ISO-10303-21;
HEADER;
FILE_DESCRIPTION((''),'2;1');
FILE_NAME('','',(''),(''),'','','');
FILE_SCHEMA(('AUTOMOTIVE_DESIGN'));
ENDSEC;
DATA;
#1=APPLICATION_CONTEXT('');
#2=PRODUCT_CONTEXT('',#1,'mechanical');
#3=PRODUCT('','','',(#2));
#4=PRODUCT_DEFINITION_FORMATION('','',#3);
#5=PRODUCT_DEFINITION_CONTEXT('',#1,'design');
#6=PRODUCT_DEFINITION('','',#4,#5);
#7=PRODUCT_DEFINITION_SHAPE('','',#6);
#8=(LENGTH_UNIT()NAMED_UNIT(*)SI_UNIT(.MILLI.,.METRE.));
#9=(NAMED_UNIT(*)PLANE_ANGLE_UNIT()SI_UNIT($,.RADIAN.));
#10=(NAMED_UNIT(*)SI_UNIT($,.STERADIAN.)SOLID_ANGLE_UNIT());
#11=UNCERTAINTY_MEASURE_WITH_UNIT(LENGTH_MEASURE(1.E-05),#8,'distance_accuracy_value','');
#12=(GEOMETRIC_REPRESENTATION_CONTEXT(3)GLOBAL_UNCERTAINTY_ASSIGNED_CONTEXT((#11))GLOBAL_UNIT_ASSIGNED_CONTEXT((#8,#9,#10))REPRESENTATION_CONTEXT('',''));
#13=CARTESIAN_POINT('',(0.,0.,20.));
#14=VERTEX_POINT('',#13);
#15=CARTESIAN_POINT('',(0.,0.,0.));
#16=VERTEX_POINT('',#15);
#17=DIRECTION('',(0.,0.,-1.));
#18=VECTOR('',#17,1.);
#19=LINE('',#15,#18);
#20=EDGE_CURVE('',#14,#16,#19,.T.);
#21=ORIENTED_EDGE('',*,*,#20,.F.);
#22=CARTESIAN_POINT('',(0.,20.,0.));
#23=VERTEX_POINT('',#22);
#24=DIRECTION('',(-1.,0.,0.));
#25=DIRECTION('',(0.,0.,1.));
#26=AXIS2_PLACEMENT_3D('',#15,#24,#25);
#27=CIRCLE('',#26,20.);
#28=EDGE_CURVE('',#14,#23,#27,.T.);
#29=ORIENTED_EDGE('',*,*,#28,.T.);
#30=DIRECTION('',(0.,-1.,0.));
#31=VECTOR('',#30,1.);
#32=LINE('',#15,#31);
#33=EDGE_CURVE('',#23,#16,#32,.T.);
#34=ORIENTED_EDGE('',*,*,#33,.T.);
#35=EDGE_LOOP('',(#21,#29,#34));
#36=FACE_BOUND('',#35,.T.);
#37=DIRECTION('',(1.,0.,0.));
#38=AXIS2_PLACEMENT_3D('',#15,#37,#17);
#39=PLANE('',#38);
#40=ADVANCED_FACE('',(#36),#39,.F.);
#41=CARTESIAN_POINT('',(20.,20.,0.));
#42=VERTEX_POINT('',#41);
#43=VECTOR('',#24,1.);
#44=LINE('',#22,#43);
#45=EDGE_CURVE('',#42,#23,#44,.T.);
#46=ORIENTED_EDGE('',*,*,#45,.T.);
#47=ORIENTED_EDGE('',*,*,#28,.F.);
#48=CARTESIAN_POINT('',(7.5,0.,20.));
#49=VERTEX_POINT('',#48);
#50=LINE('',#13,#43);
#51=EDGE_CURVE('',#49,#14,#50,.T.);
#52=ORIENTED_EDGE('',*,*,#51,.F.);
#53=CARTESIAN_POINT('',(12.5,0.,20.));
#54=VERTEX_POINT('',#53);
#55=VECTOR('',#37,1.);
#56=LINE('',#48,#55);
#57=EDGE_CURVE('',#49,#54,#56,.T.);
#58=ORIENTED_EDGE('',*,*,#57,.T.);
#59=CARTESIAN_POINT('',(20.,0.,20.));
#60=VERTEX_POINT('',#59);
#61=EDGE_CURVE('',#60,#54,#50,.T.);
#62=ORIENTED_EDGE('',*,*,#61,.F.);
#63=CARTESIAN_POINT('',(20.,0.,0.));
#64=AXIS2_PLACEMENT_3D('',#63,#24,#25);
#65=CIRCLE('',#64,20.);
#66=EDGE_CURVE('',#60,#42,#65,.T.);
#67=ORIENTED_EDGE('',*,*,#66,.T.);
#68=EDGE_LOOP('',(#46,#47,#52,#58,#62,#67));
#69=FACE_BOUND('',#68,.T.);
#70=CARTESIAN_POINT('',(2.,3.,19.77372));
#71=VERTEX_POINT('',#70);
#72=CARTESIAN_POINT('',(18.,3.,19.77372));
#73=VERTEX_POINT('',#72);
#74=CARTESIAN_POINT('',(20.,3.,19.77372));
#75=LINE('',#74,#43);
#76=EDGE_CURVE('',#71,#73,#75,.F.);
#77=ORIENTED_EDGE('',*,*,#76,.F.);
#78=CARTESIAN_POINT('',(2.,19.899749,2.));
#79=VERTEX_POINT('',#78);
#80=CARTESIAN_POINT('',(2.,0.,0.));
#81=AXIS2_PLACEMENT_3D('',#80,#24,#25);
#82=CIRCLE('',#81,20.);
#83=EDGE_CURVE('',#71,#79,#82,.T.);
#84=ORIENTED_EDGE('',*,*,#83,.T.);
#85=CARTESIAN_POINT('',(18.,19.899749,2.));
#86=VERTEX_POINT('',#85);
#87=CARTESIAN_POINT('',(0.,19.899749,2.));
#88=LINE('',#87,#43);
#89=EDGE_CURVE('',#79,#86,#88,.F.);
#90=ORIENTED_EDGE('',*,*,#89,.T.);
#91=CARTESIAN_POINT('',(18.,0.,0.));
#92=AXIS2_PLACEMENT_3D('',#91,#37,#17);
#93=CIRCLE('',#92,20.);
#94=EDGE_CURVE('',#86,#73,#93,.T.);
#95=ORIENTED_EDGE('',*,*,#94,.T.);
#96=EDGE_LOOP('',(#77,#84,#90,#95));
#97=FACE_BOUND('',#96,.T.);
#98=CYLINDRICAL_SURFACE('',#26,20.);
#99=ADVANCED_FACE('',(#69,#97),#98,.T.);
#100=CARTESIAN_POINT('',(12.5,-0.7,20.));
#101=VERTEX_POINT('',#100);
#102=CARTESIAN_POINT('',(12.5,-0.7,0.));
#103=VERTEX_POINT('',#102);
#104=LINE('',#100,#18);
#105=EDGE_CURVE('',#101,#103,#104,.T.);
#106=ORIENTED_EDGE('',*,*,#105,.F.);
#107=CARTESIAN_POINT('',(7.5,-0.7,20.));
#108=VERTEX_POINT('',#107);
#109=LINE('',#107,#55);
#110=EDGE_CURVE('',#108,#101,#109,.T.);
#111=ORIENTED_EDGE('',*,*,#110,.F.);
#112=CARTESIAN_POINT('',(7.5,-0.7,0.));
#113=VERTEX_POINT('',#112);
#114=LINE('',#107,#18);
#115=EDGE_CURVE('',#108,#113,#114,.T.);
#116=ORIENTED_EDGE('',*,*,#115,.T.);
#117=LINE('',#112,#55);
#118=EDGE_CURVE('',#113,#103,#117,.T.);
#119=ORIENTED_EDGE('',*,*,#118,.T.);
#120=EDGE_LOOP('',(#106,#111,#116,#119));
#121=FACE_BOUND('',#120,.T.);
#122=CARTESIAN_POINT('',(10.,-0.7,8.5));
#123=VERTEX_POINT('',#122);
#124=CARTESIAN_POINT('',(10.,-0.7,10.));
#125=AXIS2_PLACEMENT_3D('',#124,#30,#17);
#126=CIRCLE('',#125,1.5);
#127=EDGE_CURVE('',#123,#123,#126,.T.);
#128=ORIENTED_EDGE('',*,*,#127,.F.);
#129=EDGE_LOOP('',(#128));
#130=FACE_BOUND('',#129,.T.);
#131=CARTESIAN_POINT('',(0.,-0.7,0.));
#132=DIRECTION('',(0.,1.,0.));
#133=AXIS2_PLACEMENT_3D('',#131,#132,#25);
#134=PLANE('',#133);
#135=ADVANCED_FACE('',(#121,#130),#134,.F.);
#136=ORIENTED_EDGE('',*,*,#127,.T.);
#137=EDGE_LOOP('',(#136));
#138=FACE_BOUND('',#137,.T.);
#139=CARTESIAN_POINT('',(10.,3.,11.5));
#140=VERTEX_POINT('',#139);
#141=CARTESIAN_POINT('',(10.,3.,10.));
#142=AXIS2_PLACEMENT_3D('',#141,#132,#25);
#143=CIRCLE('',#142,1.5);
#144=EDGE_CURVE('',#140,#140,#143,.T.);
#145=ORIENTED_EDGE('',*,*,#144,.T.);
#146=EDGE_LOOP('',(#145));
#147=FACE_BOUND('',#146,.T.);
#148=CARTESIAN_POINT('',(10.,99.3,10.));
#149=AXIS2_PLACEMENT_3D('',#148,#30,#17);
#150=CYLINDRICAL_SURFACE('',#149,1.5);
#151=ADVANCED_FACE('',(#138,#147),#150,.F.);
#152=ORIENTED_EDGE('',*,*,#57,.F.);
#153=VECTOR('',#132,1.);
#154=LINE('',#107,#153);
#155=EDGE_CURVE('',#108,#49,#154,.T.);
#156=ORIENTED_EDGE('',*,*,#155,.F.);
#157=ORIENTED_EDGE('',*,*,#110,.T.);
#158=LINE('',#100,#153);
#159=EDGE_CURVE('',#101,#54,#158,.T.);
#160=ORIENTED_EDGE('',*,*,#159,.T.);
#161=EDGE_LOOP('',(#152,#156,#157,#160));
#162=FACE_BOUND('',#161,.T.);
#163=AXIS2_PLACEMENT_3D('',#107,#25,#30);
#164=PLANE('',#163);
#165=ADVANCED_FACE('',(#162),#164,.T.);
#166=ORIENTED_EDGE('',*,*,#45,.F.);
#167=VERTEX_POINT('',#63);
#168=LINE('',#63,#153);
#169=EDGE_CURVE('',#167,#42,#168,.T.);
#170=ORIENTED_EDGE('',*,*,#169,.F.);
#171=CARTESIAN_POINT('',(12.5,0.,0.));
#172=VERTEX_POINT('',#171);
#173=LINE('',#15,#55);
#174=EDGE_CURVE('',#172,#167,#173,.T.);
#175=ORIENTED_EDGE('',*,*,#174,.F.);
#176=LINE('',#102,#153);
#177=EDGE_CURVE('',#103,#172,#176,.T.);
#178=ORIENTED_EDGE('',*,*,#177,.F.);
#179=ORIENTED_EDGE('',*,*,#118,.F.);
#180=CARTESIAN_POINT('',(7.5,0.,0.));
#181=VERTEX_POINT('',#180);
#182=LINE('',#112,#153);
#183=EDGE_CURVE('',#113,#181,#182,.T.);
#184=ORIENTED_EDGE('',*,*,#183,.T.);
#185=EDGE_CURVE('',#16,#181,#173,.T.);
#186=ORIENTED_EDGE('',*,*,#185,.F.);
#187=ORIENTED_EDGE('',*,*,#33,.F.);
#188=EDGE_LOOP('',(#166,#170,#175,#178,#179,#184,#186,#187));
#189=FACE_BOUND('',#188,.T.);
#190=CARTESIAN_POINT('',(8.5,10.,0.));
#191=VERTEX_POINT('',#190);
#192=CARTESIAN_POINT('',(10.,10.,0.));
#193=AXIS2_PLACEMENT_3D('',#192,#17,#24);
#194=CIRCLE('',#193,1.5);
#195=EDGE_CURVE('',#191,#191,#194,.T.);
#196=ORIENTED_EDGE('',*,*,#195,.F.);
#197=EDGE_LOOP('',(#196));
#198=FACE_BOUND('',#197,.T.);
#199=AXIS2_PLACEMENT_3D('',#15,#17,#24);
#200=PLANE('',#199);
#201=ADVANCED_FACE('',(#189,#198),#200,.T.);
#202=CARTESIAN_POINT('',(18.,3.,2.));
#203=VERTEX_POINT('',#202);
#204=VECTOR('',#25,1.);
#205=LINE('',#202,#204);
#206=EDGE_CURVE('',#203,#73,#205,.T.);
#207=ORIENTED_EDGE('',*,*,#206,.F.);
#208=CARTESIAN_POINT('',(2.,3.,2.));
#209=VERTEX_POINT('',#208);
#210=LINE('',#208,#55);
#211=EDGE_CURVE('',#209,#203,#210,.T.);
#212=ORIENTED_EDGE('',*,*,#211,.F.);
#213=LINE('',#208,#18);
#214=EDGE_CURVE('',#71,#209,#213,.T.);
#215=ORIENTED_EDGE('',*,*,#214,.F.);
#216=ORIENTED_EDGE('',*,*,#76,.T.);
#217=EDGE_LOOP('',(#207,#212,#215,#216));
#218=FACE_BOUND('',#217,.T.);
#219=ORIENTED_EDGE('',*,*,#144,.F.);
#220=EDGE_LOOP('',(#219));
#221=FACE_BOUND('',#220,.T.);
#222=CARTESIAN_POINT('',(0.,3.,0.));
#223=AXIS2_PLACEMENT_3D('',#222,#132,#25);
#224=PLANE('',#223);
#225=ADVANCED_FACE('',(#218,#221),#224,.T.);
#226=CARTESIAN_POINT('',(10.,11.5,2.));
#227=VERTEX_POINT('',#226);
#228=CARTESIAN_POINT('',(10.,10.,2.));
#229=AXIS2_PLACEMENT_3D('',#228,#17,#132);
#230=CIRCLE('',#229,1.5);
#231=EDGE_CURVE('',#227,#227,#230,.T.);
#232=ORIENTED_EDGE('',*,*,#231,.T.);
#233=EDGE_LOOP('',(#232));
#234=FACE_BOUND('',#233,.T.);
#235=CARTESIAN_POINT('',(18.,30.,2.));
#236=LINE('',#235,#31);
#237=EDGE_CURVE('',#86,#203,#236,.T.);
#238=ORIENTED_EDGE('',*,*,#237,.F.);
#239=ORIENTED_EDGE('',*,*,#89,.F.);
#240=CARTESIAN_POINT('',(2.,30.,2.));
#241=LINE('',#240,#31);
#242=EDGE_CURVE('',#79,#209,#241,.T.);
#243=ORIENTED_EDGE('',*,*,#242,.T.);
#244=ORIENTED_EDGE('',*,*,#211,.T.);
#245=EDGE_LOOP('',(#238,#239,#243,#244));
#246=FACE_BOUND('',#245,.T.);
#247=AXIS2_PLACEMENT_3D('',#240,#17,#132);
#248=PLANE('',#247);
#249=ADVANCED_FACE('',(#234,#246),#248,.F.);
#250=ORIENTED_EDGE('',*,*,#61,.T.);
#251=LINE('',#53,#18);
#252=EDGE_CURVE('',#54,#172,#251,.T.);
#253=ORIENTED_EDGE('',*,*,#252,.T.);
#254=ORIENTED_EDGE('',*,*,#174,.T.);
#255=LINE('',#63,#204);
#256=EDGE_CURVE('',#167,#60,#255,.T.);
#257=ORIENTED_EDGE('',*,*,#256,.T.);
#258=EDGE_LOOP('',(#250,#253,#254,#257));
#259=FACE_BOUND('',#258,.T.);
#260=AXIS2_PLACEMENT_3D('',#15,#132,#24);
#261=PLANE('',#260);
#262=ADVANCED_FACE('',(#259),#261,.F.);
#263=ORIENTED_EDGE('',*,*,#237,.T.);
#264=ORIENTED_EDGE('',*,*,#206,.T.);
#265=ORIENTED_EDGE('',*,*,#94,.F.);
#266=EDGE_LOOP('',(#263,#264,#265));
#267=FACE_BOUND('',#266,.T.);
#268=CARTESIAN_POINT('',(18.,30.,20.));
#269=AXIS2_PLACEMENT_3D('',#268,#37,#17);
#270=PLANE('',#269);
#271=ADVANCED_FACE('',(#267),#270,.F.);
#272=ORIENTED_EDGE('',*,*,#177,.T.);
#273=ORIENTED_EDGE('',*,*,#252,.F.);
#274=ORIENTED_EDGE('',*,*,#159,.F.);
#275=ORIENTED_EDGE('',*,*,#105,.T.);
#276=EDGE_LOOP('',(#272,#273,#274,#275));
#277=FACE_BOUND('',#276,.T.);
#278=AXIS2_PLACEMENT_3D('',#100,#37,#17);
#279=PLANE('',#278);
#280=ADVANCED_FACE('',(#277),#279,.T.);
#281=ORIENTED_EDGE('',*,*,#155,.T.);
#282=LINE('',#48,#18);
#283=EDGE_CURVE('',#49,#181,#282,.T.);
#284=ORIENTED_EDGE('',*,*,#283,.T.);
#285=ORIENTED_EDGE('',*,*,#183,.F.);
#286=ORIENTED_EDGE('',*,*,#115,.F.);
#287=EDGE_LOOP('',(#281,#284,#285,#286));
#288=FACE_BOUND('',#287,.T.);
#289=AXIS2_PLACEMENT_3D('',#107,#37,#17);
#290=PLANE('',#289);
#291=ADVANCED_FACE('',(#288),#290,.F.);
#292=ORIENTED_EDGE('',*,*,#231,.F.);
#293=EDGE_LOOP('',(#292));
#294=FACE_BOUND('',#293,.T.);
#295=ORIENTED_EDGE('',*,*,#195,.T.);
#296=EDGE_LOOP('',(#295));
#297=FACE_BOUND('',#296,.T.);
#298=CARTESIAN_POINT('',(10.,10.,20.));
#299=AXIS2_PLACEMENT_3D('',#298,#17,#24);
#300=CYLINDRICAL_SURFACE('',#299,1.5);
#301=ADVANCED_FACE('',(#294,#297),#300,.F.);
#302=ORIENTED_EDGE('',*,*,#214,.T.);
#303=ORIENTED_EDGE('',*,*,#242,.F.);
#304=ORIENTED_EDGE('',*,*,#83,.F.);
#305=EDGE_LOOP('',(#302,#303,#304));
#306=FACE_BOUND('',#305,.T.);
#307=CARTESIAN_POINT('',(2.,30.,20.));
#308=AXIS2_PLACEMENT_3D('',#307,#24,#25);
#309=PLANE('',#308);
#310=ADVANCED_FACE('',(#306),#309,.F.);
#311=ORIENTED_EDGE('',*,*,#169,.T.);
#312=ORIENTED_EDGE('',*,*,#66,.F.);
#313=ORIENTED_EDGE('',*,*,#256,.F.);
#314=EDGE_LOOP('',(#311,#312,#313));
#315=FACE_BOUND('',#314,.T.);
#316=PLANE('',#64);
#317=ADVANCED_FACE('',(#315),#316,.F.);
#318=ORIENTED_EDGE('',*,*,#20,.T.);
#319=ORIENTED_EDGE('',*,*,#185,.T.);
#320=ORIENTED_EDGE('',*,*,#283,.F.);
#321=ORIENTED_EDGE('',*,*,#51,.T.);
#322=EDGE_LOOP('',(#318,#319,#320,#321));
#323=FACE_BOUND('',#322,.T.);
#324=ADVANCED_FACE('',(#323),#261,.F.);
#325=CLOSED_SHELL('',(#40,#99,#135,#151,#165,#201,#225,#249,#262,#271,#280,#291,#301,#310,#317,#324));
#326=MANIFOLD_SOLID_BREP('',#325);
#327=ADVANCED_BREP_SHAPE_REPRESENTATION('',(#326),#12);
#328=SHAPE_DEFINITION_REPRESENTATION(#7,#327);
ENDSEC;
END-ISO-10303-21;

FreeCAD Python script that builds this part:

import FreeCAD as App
import Part
import Sketcher
from FreeCAD import Vector
Q = App.Units.Quantity

doc = App.newDocument("Part")
body = doc.addObject("PartDesign::Body", "Body")

sketch1 = doc.addObject("Sketcher::SketchObject", "Sketch")
body.addObject(sketch1)
sketch1.AttachmentSupport = (doc.XY_Plane, [""])
sketch1.MapMode = "FlatFace"
sketch1.addGeometry([
    Part.LineSegment(Vector(0, 20, 0), Vector(0, 0, 0)),
    Part.LineSegment(Vector(0, 0, 0), Vector(20, 0, 0)),
    Part.LineSegment(Vector(20, 0, 0), Vector(20, 20, 0)),
    Part.LineSegment(Vector(20, 20, 0), Vector(0, 20, 0)),
], False)
sketch1.addConstraint([
    Sketcher.Constraint("Coincident", 0, 2, 1, 1),
    Sketcher.Constraint("Coincident", 1, 2, 2, 1),
    Sketcher.Constraint("Coincident", 2, 2, 3, 1),
    Sketcher.Constraint("Coincident", 3, 2, 0, 1),
    Sketcher.Constraint("Vertical", 0),
    Sketcher.Constraint("Horizontal", 1),
    Sketcher.Constraint("Vertical", 2),
    Sketcher.Constraint("Horizontal", 3),
    Sketcher.Constraint("Coincident", 0, 2, -1, 1),
    Sketcher.Constraint("Equal", 3, 0),
    Sketcher.Constraint("DistanceX", 1, 1, 1, 2, Q("20 mm")),
])
revolution = doc.addObject("PartDesign::Revolution", "Revolution")
body.addObject(revolution)
revolution.Profile = sketch1
revolution.ReferenceAxis = (sketch1, ["H_Axis"])
revolution.Angle = 90

sketch2 = doc.addObject("Sketcher::SketchObject", "Sketch001")
body.addObject(sketch2)
sketch2.AttachmentSupport = (doc.XZ_Plane, [""])
sketch2.MapMode = "FlatFace"
sketch2.addGeometry([
    Part.LineSegment(Vector(2, 20, 0), Vector(2, 2, 0)),
    Part.LineSegment(Vector(2, 2, 0), Vector(18, 2, 0)),
    Part.LineSegment(Vector(18, 2, 0), Vector(18, 20, 0)),
    Part.LineSegment(Vector(18, 20, 0), Vector(2, 20, 0)),
], False)
sketch2.addConstraint([
    Sketcher.Constraint("Coincident", 0, 2, 1, 1),
    Sketcher.Constraint("Coincident", 1, 2, 2, 1),
    Sketcher.Constraint("Coincident", 2, 2, 3, 1),
    Sketcher.Constraint("Coincident", 3, 2, 0, 1),
    Sketcher.Constraint("Vertical", 0),
    Sketcher.Constraint("Horizontal", 1),
    Sketcher.Constraint("Vertical", 2),
    Sketcher.Constraint("Horizontal", 3),
    Sketcher.Constraint("DistanceX", 1, 1, 1, 2, Q("16 mm")),
    Sketcher.Constraint("DistanceY", 0, 2, 0, 1, Q("18 mm")),
    Sketcher.Constraint("DistanceX", -1, 1, 0, 2, Q("2 mm")),
    Sketcher.Constraint("DistanceY", -1, 1, 0, 2, Q("2 mm")),
])
pocket1 = doc.addObject("PartDesign::Pocket", "Pocket")
body.addObject(pocket1)
pocket1.Profile = sketch2
pocket1.Length = 30

sketch3 = doc.addObject("Sketcher::SketchObject", "Sketch002")
body.addObject(sketch3)
sketch3.AttachmentSupport = (doc.XZ_Plane, [""])
sketch3.MapMode = "FlatFace"
sketch3.addGeometry([
    Part.LineSegment(Vector(2, 20, 0), Vector(2, 2, 0)),
    Part.LineSegment(Vector(2, 2, 0), Vector(18, 2, 0)),
    Part.LineSegment(Vector(18, 2, 0), Vector(18, 20, 0)),
    Part.LineSegment(Vector(18, 20, 0), Vector(2, 20, 0)),
], False)
sketch3.addConstraint([
    Sketcher.Constraint("Coincident", 0, 2, 1, 1),
    Sketcher.Constraint("Coincident", 1, 2, 2, 1),
    Sketcher.Constraint("Coincident", 2, 2, 3, 1),
    Sketcher.Constraint("Coincident", 3, 2, 0, 1),
    Sketcher.Constraint("Vertical", 0),
    Sketcher.Constraint("Horizontal", 1),
    Sketcher.Constraint("Vertical", 2),
    Sketcher.Constraint("Horizontal", 3),
    Sketcher.Constraint("DistanceX", 1, 1, 1, 2, Q("16 mm")),
    Sketcher.Constraint("DistanceY", 0, 2, 0, 1, Q("18 mm")),
    Sketcher.Constraint("DistanceX", -1, 1, 0, 2, Q("2 mm")),
    Sketcher.Constraint("DistanceY", -1, 1, 0, 2, Q("2 mm")),
])
pad1 = doc.addObject("PartDesign::Pad", "Pad")
body.addObject(pad1)
pad1.Profile = sketch3
pad1.Length = 3
pad1.Reversed = True

sketch4 = doc.addObject("Sketcher::SketchObject", "Sketch003")
body.addObject(sketch4)
sketch4.AttachmentSupport = (doc.YZ_Plane, [""])
sketch4.MapMode = "FlatFace"
sketch4.addGeometry([
    Part.Circle(Vector(0, 0, 0), Vector(0, 0, 1), 21),
    Part.Circle(Vector(0, 0, 0), Vector(0, 0, 1), 20),
], False)
sketch4.addConstraint([
    Sketcher.Constraint("Coincident", 0, 3, -1, 1),
    Sketcher.Constraint("Coincident", 1, 3, -1, 1),
    Sketcher.Constraint("Diameter", 0, Q("42 mm")),
    Sketcher.Constraint("Diameter", 1, Q("40 mm")),
])
pocket2 = doc.addObject("PartDesign::Pocket", "Pocket001")
body.addObject(pocket2)
pocket2.Profile = sketch4
pocket2.Type = "ThroughAll"
pocket2.Reversed = True

sketch5 = doc.addObject("Sketcher::SketchObject", "Sketch004")
body.addObject(sketch5)
sketch5.AttachmentSupport = (doc.XY_Plane, [""])
sketch5.MapMode = "FlatFace"
sketch5.addGeometry(Part.Circle(Vector(10, 10, 0), Vector(0, 0, 1), 1.5), False)
sketch5.addConstraint([
    Sketcher.Constraint("Diameter", 0, Q("3 mm")),
    Sketcher.Constraint("DistanceX", -1, 1, 0, 3, Q("10 mm")),
    Sketcher.Constraint("DistanceY", -1, 1, 0, 3, Q("10 mm")),
])
pocket3 = doc.addObject("PartDesign::Pocket", "Pocket002")
body.addObject(pocket3)
pocket3.Profile = sketch5
pocket3.Type = "ThroughAll"
pocket3.Reversed = True

sketch6 = doc.addObject("Sketcher::SketchObject", "Sketch005")
body.addObject(sketch6)
sketch6.AttachmentSupport = (doc.XZ_Plane, [""])
sketch6.MapMode = "FlatFace"
sketch6.addGeometry([
    Part.LineSegment(Vector(7.5, 20, 0), Vector(7.5, 0, 0)),
    Part.LineSegment(Vector(7.5, 0, 0), Vector(12.5, 0, 0)),
    Part.LineSegment(Vector(12.5, 0, 0), Vector(12.5, 20, 0)),
    Part.LineSegment(Vector(12.5, 20, 0), Vector(7.5, 20, 0)),
], False)
sketch6.addConstraint([
    Sketcher.Constraint("Coincident", 0, 2, 1, 1),
    Sketcher.Constraint("Coincident", 1, 2, 2, 1),
    Sketcher.Constraint("Coincident", 2, 2, 3, 1),
    Sketcher.Constraint("Coincident", 3, 2, 0, 1),
    Sketcher.Constraint("Vertical", 0),
    Sketcher.Constraint("Horizontal", 1),
    Sketcher.Constraint("Vertical", 2),
    Sketcher.Constraint("Horizontal", 3),
    Sketcher.Constraint("PointOnObject", 0, 2, -1),
    Sketcher.Constraint("DistanceX", 1, 1, 1, 2, Q("5 mm")),
    Sketcher.Constraint("DistanceY", 0, 2, 0, 1, Q("20 mm")),
    Sketcher.Constraint("DistanceX", -1, 1, 0, 2, Q("7.5 mm")),
])
pad2 = doc.addObject("PartDesign::Pad", "Pad001")
body.addObject(pad2)
pad2.Profile = sketch6
pad2.Length = 0.7

sketch7 = doc.addObject("Sketcher::SketchObject", "Sketch006")
body.addObject(sketch7)
sketch7.AttachmentSupport = (doc.XZ_Plane, [""])
sketch7.MapMode = "FlatFace"
sketch7.AttachmentOffset = App.Placement(Vector(0, 0, 0.7), App.Rotation())
sketch7.addGeometry(Part.Circle(Vector(10, 10, 0), Vector(0, 0, 1), 1.5), False)
sketch7.addConstraint([
    Sketcher.Constraint("Diameter", 0, Q("3 mm")),
    Sketcher.Constraint("DistanceX", -1, 1, 0, 3, Q("10 mm")),
    Sketcher.Constraint("DistanceY", -1, 1, 0, 3, Q("10 mm")),
])
pocket4 = doc.addObject("PartDesign::Pocket", "Pocket003")
body.addObject(pocket4)
pocket4.Profile = sketch7
pocket4.Length = 100

doc.recompute()
